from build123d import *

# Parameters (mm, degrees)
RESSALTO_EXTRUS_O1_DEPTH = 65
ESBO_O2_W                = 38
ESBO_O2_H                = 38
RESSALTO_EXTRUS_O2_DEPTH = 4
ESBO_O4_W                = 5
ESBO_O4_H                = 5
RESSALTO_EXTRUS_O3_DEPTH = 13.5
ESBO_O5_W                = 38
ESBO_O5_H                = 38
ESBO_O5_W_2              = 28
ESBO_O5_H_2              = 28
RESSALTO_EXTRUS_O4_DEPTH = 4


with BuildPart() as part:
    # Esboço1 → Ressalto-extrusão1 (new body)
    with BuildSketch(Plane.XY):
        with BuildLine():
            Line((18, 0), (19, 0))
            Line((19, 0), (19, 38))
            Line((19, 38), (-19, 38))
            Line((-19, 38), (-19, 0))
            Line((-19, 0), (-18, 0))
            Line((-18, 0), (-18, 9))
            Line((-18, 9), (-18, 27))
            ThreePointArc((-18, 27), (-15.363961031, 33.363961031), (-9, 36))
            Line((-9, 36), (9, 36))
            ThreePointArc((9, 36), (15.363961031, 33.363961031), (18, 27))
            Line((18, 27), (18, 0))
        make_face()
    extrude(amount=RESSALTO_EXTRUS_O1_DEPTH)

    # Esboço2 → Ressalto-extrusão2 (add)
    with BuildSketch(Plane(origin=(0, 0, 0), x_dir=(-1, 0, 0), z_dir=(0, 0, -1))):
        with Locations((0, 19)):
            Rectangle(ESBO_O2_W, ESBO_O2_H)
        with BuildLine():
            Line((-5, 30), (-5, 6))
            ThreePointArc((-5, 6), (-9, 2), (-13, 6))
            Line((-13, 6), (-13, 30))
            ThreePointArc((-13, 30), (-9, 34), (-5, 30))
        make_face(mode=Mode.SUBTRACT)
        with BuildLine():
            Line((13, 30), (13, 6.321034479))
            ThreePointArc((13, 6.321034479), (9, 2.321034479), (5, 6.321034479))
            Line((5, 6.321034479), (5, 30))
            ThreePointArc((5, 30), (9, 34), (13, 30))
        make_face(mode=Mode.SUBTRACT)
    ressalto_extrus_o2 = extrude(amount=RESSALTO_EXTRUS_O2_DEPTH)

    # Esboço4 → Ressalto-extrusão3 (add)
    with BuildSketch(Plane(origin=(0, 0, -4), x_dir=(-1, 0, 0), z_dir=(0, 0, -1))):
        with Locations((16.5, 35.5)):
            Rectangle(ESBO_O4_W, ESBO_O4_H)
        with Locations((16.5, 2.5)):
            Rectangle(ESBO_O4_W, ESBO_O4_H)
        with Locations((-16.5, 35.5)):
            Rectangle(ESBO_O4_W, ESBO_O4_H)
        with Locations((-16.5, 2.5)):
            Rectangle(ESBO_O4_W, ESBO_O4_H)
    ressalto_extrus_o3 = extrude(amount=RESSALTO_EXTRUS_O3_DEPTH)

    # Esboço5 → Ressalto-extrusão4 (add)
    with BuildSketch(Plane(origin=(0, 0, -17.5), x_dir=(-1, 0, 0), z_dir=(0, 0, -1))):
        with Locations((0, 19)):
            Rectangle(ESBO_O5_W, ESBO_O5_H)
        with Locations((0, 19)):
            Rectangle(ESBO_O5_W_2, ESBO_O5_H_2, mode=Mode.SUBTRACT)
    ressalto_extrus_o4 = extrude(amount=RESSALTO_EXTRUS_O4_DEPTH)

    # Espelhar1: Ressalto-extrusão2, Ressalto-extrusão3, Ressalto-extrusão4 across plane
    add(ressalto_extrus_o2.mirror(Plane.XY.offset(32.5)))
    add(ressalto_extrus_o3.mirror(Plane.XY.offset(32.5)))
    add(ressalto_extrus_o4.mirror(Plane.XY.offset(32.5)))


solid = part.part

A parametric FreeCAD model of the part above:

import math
import FreeCAD as App
import Part
import Sketcher
from FreeCAD import Vector
Q = App.Units.Quantity

doc = App.newDocument("Part")
params = doc.addObject("Spreadsheet::Sheet", "Params")
for row, (alias, value) in enumerate([
    ("sketch1_radius", "9 mm"),
    ("sketch1_width", "1 mm"),
    ("sketch1_width2", "38 mm"),
    ("sketch1_height", "27 mm"),
    ("pad1_length", "65 mm"),
    ("sketch2_radius", "4 mm"),
    ("sketch2_width", "38 mm"),
    ("sketch2_height", "24 mm"),
    ("pad2_length", "4 mm"),
    ("sketch3_width", "5 mm"),
    ("pad3_length", "13.5 mm"),
    ("sketch4_width", "38 mm"),
    ("sketch4_width2", "28 mm"),
    ("pad4_length", "4 mm"),
], start=1):
    params.set(f"A{row}", alias)
    params.set(f"B{row}", "=" + value)
    params.setAlias(f"B{row}", alias)

body = doc.addObject("PartDesign::Body", "Body")

sketch1 = doc.addObject("Sketcher::SketchObject", "Sketch")
body.addObject(sketch1)
sketch1.AttachmentSupport = (doc.XY_Plane, [""])
sketch1.MapMode = "FlatFace"
sketch1.addGeometry(Part.LineSegment(Vector(18, 0, 0), Vector(19, 0, 0)), False)
sketch1.addGeometry(Part.LineSegment(Vector(19, 0, 0), Vector(19, 38, 0)), False)
sketch1.addGeometry(Part.LineSegment(Vector(19, 38, 0), Vector(-19, 38, 0)), False)
sketch1.addGeometry(Part.LineSegment(Vector(-19, 38, 0), Vector(-19, 0, 0)), False)
sketch1.addGeometry(Part.LineSegment(Vector(-19, 0, 0), Vector(-18, 0, 0)), False)
sketch1.addGeometry(Part.LineSegment(Vector(-18, 0, 0), Vector(-18, 27, 0)), False)
sketch1.addGeometry(Part.ArcOfCircle(Part.Circle(Vector(-9, 27, 0), Vector(0, 0, 1), 9), math.radians(90), math.radians(180)), False)
sketch1.addGeometry(Part.LineSegment(Vector(-9, 36, 0), Vector(9, 36, 0)), False)
sketch1.addGeometry(Part.ArcOfCircle(Part.Circle(Vector(9, 27, 0), Vector(0, 0, 1), 9), math.radians(0), math.radians(90)), False)
sketch1.addGeometry(Part.LineSegment(Vector(18, 27, 0), Vector(18, 0, 0)), False)
sketch1.addConstraint(Sketcher.Constraint("Coincident", 0, 2, 1, 1))
sketch1.addConstraint(Sketcher.Constraint("Coincident", 1, 2, 2, 1))
sketch1.addConstraint(Sketcher.Constraint("Coincident", 2, 2, 3, 1))
sketch1.addConstraint(Sketcher.Constraint("Coincident", 3, 2, 4, 1))
sketch1.addConstraint(Sketcher.Constraint("Coincident", 4, 2, 5, 1))
sketch1.addConstraint(Sketcher.Constraint("Tangent", 5, 2, 6, 2))
sketch1.addConstraint(Sketcher.Constraint("Tangent", 6, 1, 7, 1))
sketch1.addConstraint(Sketcher.Constraint("Tangent", 7, 2, 8, 2))
sketch1.addConstraint(Sketcher.Constraint("Tangent", 8, 1, 9, 1))
sketch1.addConstraint(Sketcher.Constraint("Coincident", 9, 2, 0, 1))
sketch1.addConstraint(Sketcher.Constraint("Horizontal", 0))
sketch1.addConstraint(Sketcher.Constraint("Vertical", 1))
sketch1.addConstraint(Sketcher.Constraint("Horizontal", 2))
sketch1.addConstraint(Sketcher.Constraint("Vertical", 3))
sketch1.addConstraint(Sketcher.Constraint("Horizontal", 4))
sketch1.addConstraint(Sketcher.Constraint("Vertical", 5))
sketch1.addConstraint(Sketcher.Constraint("Horizontal", 7))
sketch1.addConstraint(Sketcher.Constraint("Vertical", 9))
sketch1.addConstraint(Sketcher.Constraint("Equal", 6, 8))
sketch1.addConstraint(Sketcher.Constraint("Symmetric", 0, 2, 3, 2, -1, 1))
sketch1.addConstraint(Sketcher.Constraint("Symmetric", 4, 2, 9, 2, -2))
sketch1.addConstraint(Sketcher.Constraint("Equal", 2, 1))
sketch1.addConstraint(Sketcher.Constraint("Radius", 6, Q("9 mm")))
sketch1.addConstraint(Sketcher.Constraint("DistanceX", 0, 1, 0, 2, Q("1 mm")))
sketch1.addConstraint(Sketcher.Constraint("DistanceX", 2, 2, 2, 1, Q("38 mm")))
sketch1.addConstraint(Sketcher.Constraint("DistanceY", 5, 1, 5, 2, Q("27 mm")))
sketch1.setExpression("Constraints[22]", "Params.sketch1_radius")
sketch1.setExpression("Constraints[23]", "Params.sketch1_width")
sketch1.setExpression("Constraints[24]", "Params.sketch1_width2")
sketch1.setExpression("Constraints[25]", "Params.sketch1_height")
pad1 = doc.addObject("PartDesign::Pad", "Pad")
body.addObject(pad1)
pad1.Profile = sketch1
pad1.setExpression("Length", "Params.pad1_length")

sketch2 = doc.addObject("Sketcher::SketchObject", "Sketch001")
body.addObject(sketch2)
sketch2.AttachmentSupport = (doc.XY_Plane, [""])
sketch2.MapMode = "FlatFace"
sketch2.addGeometry(Part.LineSegment(Vector(19, 38, 0), Vector(19, 0, 0)), False)
sketch2.addGeometry(Part.LineSegment(Vector(19, 0, 0), Vector(-19, 0, 0)), False)
sketch2.addGeometry(Part.LineSegment(Vector(-19, 0, 0), Vector(-19, 38, 0)), False)
sketch2.addGeometry(Part.LineSegment(Vector(-19, 38, 0), Vector(19, 38, 0)), False)
sketch2.addGeometry(Part.ArcOfCircle(Part.Circle(Vector(9, 30, 0), Vector(0, 0, 1), 4), math.radians(0), math.radians(180)), False)
sketch2.addGeometry(Part.LineSegment(Vector(5, 30, 0), Vector(5, 6, 0)), False)
sketch2.addGeometry(Part.ArcOfCircle(Part.Circle(Vector(9, 6, 0), Vector(0, 0, 1), 4), math.radians(180), math.radians(360)), False)
sketch2.addGeometry(Part.LineSegment(Vector(13, 6, 0), Vector(13, 30, 0)), False)
sketch2.addGeometry(Part.ArcOfCircle(Part.Circle(Vector(-9, 30, 0), Vector(0, 0, 1), 4), math.radians(0), math.radians(180)), False)
sketch2.addGeometry(Part.LineSegment(Vector(-13, 30, 0), Vector(-13, 6.321034, 0)), False)
sketch2.addGeometry(Part.ArcOfCircle(Part.Circle(Vector(-9, 6.321034, 0), Vector(0, 0, 1), 4), math.radians(180), math.radians(360)), False)
sketch2.addGeometry(Part.LineSegment(Vector(-5, 6.321034, 0), Vector(-5, 30, 0)), False)
sketch2.addConstraint(Sketcher.Constraint("Coincident", 0, 2, 1, 1))
sketch2.addConstraint(Sketcher.Constraint("Coincident", 1, 2, 2, 1))
sketch2.addConstraint(Sketcher.Constraint("Coincident", 2, 2, 3, 1))
sketch2.addConstraint(Sketcher.Constraint("Coincident", 3, 2, 0, 1))
sketch2.addConstraint(Sketcher.Constraint("Tangent", 4, 2, 5, 1))
sketch2.addConstraint(Sketcher.Constraint("Tangent", 5, 2, 6, 1))
sketch2.addConstraint(Sketcher.Constraint("Tangent", 6, 2, 7, 1))
sketch2.addConstraint(Sketcher.Constraint("Tangent", 7, 2, 4, 1))
sketch2.addConstraint(Sketcher.Constraint("Tangent", 8, 2, 9, 1))
sketch2.addConstraint(Sketcher.Constraint("Tangent", 9, 2, 10, 1))
sketch2.addConstraint(Sketcher.Constraint("Tangent", 10, 2, 11, 1))
sketch2.addConstraint(Sketcher.Constraint("Tangent", 11, 2, 8, 1))
sketch2.addConstraint(Sketcher.Constraint("Vertical", 0))
sketch2.addConstraint(Sketcher.Constraint("Horizontal", 1))
sketch2.addConstraint(Sketcher.Constraint("Vertical", 2))
sketch2.addConstraint(Sketcher.Constraint("Horizontal", 3))
sketch2.addConstraint(Sketcher.Constraint("Vertical", 5))
sketch2.addConstraint(Sketcher.Constraint("Vertical", 7))
sketch2.addConstraint(Sketcher.Constraint("Vertical", 9))
sketch2.addConstraint(Sketcher.Constraint("Vertical", 11))
sketch2.addConstraint(Sketcher.Constraint("Equal", 6, 8))
sketch2.addConstraint(Sketcher.Constraint("Symmetric", 0, 2, 1, 2, -1, 1))
sketch2.addConstraint(Sketcher.Constraint("Symmetric", 4, 3, 8, 3, -2))
sketch2.addConstraint(Sketcher.Constraint("Equal", 3, 0))
sketch2.addConstraint(Sketcher.Constraint("Radius", 4, Q("4 mm")))
sketch2.addConstraint(Sketcher.Constraint("DistanceX", 1, 2, 1, 1, Q("38 mm")))
sketch2.addConstraint(Sketcher.Constraint("DistanceY", 5, 2, 5, 1, Q("24 mm")))
sketch2.addConstraint(Sketcher.Constraint("DistanceX", -1, 1, 4, 3, Q("9 mm")))
sketch2.addConstraint(Sketcher.Constraint("DistanceY", -1, 1, 4, 3, Q("30 mm")))
sketch2.addConstraint(Sketcher.Constraint("DistanceY", 9, 2, 9, 1, Q("23.678966 mm")))
sketch2.setExpression("Constraints[24]", "Params.sketch2_radius")
sketch2.setExpression("Constraints[25]", "Params.sketch2_width")
sketch2.setExpression("Constraints[26]", "Params.sketch2_height")
pad2 = doc.addObject("PartDesign::Pad", "Pad001")
body.addObject(pad2)
pad2.Profile = sketch2
pad2.setExpression("Length", "Params.pad2_length")
pad2.Reversed = True

sketch3 = doc.addObject("Sketcher::SketchObject", "Sketch002")
body.addObject(sketch3)
sketch3.AttachmentSupport = (doc.XY_Plane, [""])
sketch3.MapMode = "FlatFace"
sketch3.AttachmentOffset = App.Placement(Vector(0, 0, -4), App.Rotation())
sketch3.addGeometry(Part.LineSegment(Vector(-14, 38, 0), Vector(-14, 33, 0)), False)
sketch3.addGeometry(Part.LineSegment(Vector(-14, 33, 0), Vector(-19, 33, 0)), False)
sketch3.addGeometry(Part.LineSegment(Vector(-19, 33, 0), Vector(-19, 38, 0)), False)
sketch3.addGeometry(Part.LineSegment(Vector(-19, 38, 0), Vector(-14, 38, 0)), False)
sketch3.addGeometry(Part.LineSegment(Vector(-14, 5, 0), Vector(-14, 0, 0)), False)
sketch3.addGeometry(Part.LineSegment(Vector(-14, 0, 0), Vector(-19, 0, 0)), False)
sketch3.addGeometry(Part.LineSegment(Vector(-19, 0, 0), Vector(-19, 5, 0)), False)
sketch3.addGeometry(Part.LineSegment(Vector(-19, 5, 0), Vector(-14, 5, 0)), False)
sketch3.addGeometry(Part.LineSegment(Vector(19, 38, 0), Vector(19, 33, 0)), False)
sketch3.addGeometry(Part.LineSegment(Vector(19, 33, 0), Vector(14, 33, 0)), False)
sketch3.addGeometry(Part.LineSegment(Vector(14, 33, 0), Vector(14, 38, 0)), False)
sketch3.addGeometry(Part.LineSegment(Vector(14, 38, 0), Vector(19, 38, 0)), False)
sketch3.addGeometry(Part.LineSegment(Vector(19, 5, 0), Vector(19, 0, 0)), False)
sketch3.addGeometry(Part.LineSegment(Vector(19, 0, 0), Vector(14, 0, 0)), False)
sketch3.addGeometry(Part.LineSegment(Vector(14, 0, 0), Vector(14, 5, 0)), False)
sketch3.addGeometry(Part.LineSegment(Vector(14, 5, 0), Vector(19, 5, 0)), False)
sketch3.addConstraint(Sketcher.Constraint("Coincident", 0, 2, 1, 1))
sketch3.addConstraint(Sketcher.Constraint("Coincident", 1, 2, 2, 1))
sketch3.addConstraint(Sketcher.Constraint("Coincident", 2, 2, 3, 1))
sketch3.addConstraint(Sketcher.Constraint("Coincident", 3, 2, 0, 1))
sketch3.addConstraint(Sketcher.Constraint("Coincident", 4, 2, 5, 1))
sketch3.addConstraint(Sketcher.Constraint("Coincident", 5, 2, 6, 1))
sketch3.addConstraint(Sketcher.Constraint("Coincident", 6, 2, 7, 1))
sketch3.addConstraint(Sketcher.Constraint("Coincident", 7, 2, 4, 1))
sketch3.addConstraint(Sketcher.Constraint("Coincident", 8, 2, 9, 1))
sketch3.addConstraint(Sketcher.Constraint("Coincident", 9, 2, 10, 1))
sketch3.addConstraint(Sketcher.Constraint("Coincident", 10, 2, 11, 1))
sketch3.addConstraint(Sketcher.Constraint("Coincident", 11, 2, 8, 1))
sketch3.addConstraint(Sketcher.Constraint("Coincident", 12, 2, 13, 1))
sketch3.addConstraint(Sketcher.Constraint("Coincident", 13, 2, 14, 1))
sketch3.addConstraint(Sketcher.Constraint("Coincident", 14, 2, 15, 1))
sketch3.addConstraint(Sketcher.Constraint("Coincident", 15, 2, 12, 1))
sketch3.addConstraint(Sketcher.Constraint("Vertical", 0))
sketch3.addConstraint(Sketcher.Constraint("Horizontal", 1))
sketch3.addConstraint(Sketcher.Constraint("Vertical", 2))
sketch3.addConstraint(Sketcher.Constraint("Horizontal", 3))
sketch3.addConstraint(Sketcher.Constraint("Vertical", 4))
sketch3.addConstraint(Sketcher.Constraint("Horizontal", 5))
sketch3.addConstraint(Sketcher.Constraint("Vertical", 6))
sketch3.addConstraint(Sketcher.Constraint("Horizontal", 7))
sketch3.addConstraint(Sketcher.Constraint("Vertical", 8))
sketch3.addConstraint(Sketcher.Constraint("Horizontal", 9))
sketch3.addConstraint(Sketcher.Constraint("Vertical", 10))
sketch3.addConstraint(Sketcher.Constraint("Horizontal", 11))
sketch3.addConstraint(Sketcher.Constraint("Vertical", 12))
sketch3.addConstraint(Sketcher.Constraint("Horizontal", 13))
sketch3.addConstraint(Sketcher.Constraint("Vertical", 14))
sketch3.addConstraint(Sketcher.Constraint("Horizontal", 15))
sketch3.addConstraint(Sketcher.Constraint("Symmetric", 5, 2, 12, 2, -1, 1))
sketch3.addConstraint(Sketcher.Constraint("Symmetric", 1, 2, 8, 2, -2))
sketch3.addConstraint(Sketcher.Constraint("Symmetric", 3, 2, 10, 2, -2))
sketch3.addConstraint(Sketcher.Constraint("Symmetric", 4, 2, 13, 2, -2))
sketch3.addConstraint(Sketcher.Constraint("Horizontal", 7, 2, 14, 2))
sketch3.addConstraint(Sketcher.Constraint("Vertical", 3, 2, 4, 2))
sketch3.addConstraint(Sketcher.Constraint("Vertical", 2, 2, 5, 2))
sketch3.addConstraint(Sketcher.Constraint("Equal", 15, 0))
sketch3.addConstraint(Sketcher.Constraint("Equal", 2, 4))
sketch3.addConstraint(Sketcher.Constraint("DistanceX", 1, 2, 1, 1, Q("5 mm")))
sketch3.addConstraint(Sketcher.Constraint("DistanceX", 0, 2, -1, 1, Q("14 mm")))
sketch3.addConstraint(Sketcher.Constraint("DistanceY", -1, 1, 0, 2, Q("33 mm")))
sketch3.setExpression("Constraints[41]", "Params.sketch3_width")
pad3 = doc.addObject("PartDesign::Pad", "Pad002")
body.addObject(pad3)
pad3.Profile = sketch3
pad3.setExpression("Length", "Params.pad3_length")
pad3.Reversed = True

sketch4 = doc.addObject("Sketcher::SketchObject", "Sketch003")
body.addObject(sketch4)
sketch4.AttachmentSupport = (doc.XY_Plane, [""])
sketch4.MapMode = "FlatFace"
sketch4.AttachmentOffset = App.Placement(Vector(0, 0, -17.5), App.Rotation())
sketch4.addGeometry(Part.LineSegment(Vector(19, 38, 0), Vector(19, 0, 0)), False)
sketch4.addGeometry(Part.LineSegment(Vector(19, 0, 0), Vector(-19, 0, 0)), False)
sketch4.addGeometry(Part.LineSegment(Vector(-19, 0, 0), Vector(-19, 38, 0)), False)
sketch4.addGeometry(Part.LineSegment(Vector(-19, 38, 0), Vector(19, 38, 0)), False)
sketch4.addGeometry(Part.LineSegment(Vector(-14, 5, 0), Vector(14, 5, 0)), False)
sketch4.addGeometry(Part.LineSegment(Vector(14, 5, 0), Vector(14, 33, 0)), False)
sketch4.addGeometry(Part.LineSegment(Vector(14, 33, 0), Vector(-14, 33, 0)), False)
sketch4.addGeometry(Part.LineSegment(Vector(-14, 33, 0), Vector(-14, 5, 0)), False)
sketch4.addConstraint(Sketcher.Constraint("Coincident", 0, 2, 1, 1))
sketch4.addConstraint(Sketcher.Constraint("Coincident", 1, 2, 2, 1))
sketch4.addConstraint(Sketcher.Constraint("Coincident", 2, 2, 3, 1))
sketch4.addConstraint(Sketcher.Constraint("Coincident", 3, 2, 0, 1))
sketch4.addConstraint(Sketcher.Constraint("Coincident", 4, 2, 5, 1))
sketch4.addConstraint(Sketcher.Constraint("Coincident", 5, 2, 6, 1))
sketch4.addConstraint(Sketcher.Constraint("Coincident", 6, 2, 7, 1))
sketch4.addConstraint(Sketcher.Constraint("Coincident", 7, 2, 4, 1))
sketch4.addConstraint(Sketcher.Constraint("Vertical", 0))
sketch4.addConstraint(Sketcher.Constraint("Horizontal", 1))
sketch4.addConstraint(Sketcher.Constraint("Vertical", 2))
sketch4.addConstraint(Sketcher.Constraint("Horizontal", 3))
sketch4.addConstraint(Sketcher.Constraint("Horizontal", 4))
sketch4.addConstraint(Sketcher.Constraint("Vertical", 5))
sketch4.addConstraint(Sketcher.Constraint("Horizontal", 6))
sketch4.addConstraint(Sketcher.Constraint("Vertical", 7))
sketch4.addConstraint(Sketcher.Constraint("Symmetric", 0, 2, 1, 2, -1, 1))
sketch4.addConstraint(Sketcher.Constraint("Equal", 3, 0))
sketch4.addConstraint(Sketcher.Constraint("Equal", 6, 5))
sketch4.addConstraint(Sketcher.Constraint("DistanceX", 1, 2, 1, 1, Q("38 mm")))
sketch4.addConstraint(Sketcher.Constraint("DistanceX", 4, 1, 4, 2, Q("28 mm")))
sketch4.addConstraint(Sketcher.Constraint("DistanceX", -1, 1, 4, 2, Q("14 mm")))
sketch4.addConstraint(Sketcher.Constraint("DistanceY", -1, 1, 4, 2, Q("5 mm")))
sketch4.setExpression("Constraints[19]", "Params.sketch4_width")
sketch4.setExpression("Constraints[20]", "Params.sketch4_width2")
pad4 = doc.addObject("PartDesign::Pad", "Pad003")
body.addObject(pad4)
pad4.Profile = sketch4
pad4.setExpression("Length", "Params.pad4_length")
pad4.Reversed = True
doc.recompute()

datumplane = doc.addObject("PartDesign::Plane", "DatumPlane")
body.addObject(datumplane)
datumplane.AttachmentSupport = (doc.XY_Plane, [""])
datumplane.MapMode = "FlatFace"
datumplane.AttachmentOffset = App.Placement(Vector(0, 0, 32.5), App.Rotation())
mirrored = doc.addObject("PartDesign::Mirrored", "Mirrored")
body.addObject(mirrored)
mirrored.Originals = [pad2, pad3, pad4]
mirrored.MirrorPlane = (datumplane, [""])
body.Tip = mirrored

doc.recompute()
